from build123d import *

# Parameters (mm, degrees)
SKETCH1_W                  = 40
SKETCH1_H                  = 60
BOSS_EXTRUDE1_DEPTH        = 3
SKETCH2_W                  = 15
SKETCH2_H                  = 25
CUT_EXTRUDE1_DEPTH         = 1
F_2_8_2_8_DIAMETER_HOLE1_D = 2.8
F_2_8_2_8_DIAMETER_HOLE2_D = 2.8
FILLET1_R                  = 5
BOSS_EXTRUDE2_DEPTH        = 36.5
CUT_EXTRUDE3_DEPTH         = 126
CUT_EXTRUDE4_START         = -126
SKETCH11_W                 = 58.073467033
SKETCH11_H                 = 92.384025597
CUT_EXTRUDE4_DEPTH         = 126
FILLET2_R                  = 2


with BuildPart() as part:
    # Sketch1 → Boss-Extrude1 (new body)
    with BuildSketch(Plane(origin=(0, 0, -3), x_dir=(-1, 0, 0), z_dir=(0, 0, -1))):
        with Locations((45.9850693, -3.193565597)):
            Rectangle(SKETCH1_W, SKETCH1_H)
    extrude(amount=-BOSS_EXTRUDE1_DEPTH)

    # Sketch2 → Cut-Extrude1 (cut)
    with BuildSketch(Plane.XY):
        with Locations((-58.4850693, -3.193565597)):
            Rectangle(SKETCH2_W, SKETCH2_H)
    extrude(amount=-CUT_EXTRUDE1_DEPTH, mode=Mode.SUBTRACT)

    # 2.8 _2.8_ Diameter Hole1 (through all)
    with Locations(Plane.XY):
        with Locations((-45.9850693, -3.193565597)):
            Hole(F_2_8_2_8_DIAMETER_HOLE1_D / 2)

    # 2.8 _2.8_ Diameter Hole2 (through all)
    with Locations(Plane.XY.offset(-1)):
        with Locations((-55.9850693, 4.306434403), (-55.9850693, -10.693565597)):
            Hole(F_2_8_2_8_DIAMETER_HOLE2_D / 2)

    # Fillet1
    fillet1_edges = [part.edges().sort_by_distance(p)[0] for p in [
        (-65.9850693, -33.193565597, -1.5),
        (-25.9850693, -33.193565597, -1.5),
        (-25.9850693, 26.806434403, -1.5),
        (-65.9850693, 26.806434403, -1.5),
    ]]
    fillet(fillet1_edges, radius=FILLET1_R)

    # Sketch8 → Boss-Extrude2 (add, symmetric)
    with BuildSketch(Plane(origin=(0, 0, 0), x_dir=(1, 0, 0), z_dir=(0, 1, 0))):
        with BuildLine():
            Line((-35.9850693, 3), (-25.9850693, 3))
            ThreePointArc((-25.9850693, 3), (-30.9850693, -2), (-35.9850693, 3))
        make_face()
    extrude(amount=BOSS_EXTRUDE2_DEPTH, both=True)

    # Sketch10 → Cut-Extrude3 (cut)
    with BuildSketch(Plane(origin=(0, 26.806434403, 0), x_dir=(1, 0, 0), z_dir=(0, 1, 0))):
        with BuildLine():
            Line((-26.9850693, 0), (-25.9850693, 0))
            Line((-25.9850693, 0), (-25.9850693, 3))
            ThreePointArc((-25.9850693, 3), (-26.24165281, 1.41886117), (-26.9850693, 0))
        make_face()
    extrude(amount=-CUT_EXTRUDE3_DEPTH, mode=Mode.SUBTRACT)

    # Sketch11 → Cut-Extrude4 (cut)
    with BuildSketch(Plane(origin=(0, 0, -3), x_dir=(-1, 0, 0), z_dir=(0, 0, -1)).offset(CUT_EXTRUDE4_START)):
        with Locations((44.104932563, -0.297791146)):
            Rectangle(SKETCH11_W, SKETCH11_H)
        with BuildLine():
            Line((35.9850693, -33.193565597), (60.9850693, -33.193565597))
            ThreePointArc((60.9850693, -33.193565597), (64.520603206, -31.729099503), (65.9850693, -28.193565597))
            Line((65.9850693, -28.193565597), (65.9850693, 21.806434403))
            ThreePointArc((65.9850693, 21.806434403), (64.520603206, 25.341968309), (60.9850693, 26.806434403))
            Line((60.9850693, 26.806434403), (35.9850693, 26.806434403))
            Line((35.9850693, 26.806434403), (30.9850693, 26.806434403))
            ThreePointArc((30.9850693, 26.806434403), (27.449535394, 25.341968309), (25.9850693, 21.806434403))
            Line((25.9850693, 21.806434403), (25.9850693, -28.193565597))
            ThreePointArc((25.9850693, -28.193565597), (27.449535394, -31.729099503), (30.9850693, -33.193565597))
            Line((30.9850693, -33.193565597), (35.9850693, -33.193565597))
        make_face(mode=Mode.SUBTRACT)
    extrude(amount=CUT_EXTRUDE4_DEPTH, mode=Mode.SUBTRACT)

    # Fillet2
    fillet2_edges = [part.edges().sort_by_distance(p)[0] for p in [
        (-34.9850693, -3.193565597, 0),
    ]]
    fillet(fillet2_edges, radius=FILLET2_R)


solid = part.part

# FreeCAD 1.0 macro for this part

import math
import FreeCAD as App
import Part
import Sketcher

V = App.Vector
Q = App.Units.Quantity


def edges_at(feature, points):
    """Names of the edges that pass closest to the given points."""
    edges = feature.Shape.Edges
    near = lambda p: min(range(len(edges)), key=lambda i: edges[i].distToShape(Part.Vertex(*p))[0])
    return sorted({f"Edge{near(p) + 1}" for p in points})

doc = App.newDocument("Part")
body = doc.addObject("PartDesign::Body", "Body")

# Sketch on XY plane
sketch1 = body.newObject("Sketcher::SketchObject", "Sketch")
sketch1.AttachmentSupport = (doc.getObject("XY_Plane"), [""])
sketch1.MapMode = "FlatFace"
sketch1.AttachmentOffset = App.Placement(V(0, 0, -3), App.Rotation())
sketch1.addGeometry([
    Part.LineSegment(V(-26, 27, 0), V(-26, -33, 0)),
    Part.LineSegment(V(-26, -33, 0), V(-66, -33, 0)),
    Part.LineSegment(V(-66, -33, 0), V(-66, 27, 0)),
    Part.LineSegment(V(-66, 27, 0), V(-26, 27, 0)),
], False)
sketch1.addConstraint([
    Sketcher.Constraint("Coincident", 0, 2, 1, 1),
    Sketcher.Constraint("Coincident", 1, 2, 2, 1),
    Sketcher.Constraint("Coincident", 2, 2, 3, 1),
    Sketcher.Constraint("Coincident", 3, 2, 0, 1),
    Sketcher.Constraint("Vertical", 0),
    Sketcher.Constraint("Horizontal", 1),
    Sketcher.Constraint("Vertical", 2),
    Sketcher.Constraint("Horizontal", 3),
    Sketcher.Constraint("DistanceX", 1, 2, 1, 1, Q("40 mm")),
    Sketcher.Constraint("DistanceY", 0, 2, 0, 1, Q("60 mm")),
    Sketcher.Constraint("DistanceX", 0, 2, -1, 1, Q("25.985069 mm")),
    Sketcher.Constraint("DistanceY", 0, 2, -1, 1, Q("33.193566 mm")),
])
pad1 = body.newObject("PartDesign::Pad", "Pad")
pad1.Profile = sketch1
pad1.Length = 3

# Sketch on XY plane
sketch2 = body.newObject("Sketcher::SketchObject", "Sketch001")
sketch2.AttachmentSupport = (doc.getObject("XY_Plane"), [""])
sketch2.MapMode = "FlatFace"
sketch2.addGeometry([
    Part.LineSegment(V(-66, 9, 0), V(-66, -16, 0)),
    Part.LineSegment(V(-66, -16, 0), V(-51, -16, 0)),
    Part.LineSegment(V(-51, -16, 0), V(-51, 9, 0)),
    Part.LineSegment(V(-51, 9, 0), V(-66, 9, 0)),
], False)
sketch2.addConstraint([
    Sketcher.Constraint("Coincident", 0, 2, 1, 1),
    Sketcher.Constraint("Coincident", 1, 2, 2, 1),
    Sketcher.Constraint("Coincident", 2, 2, 3, 1),
    Sketcher.Constraint("Coincident", 3, 2, 0, 1),
    Sketcher.Constraint("Vertical", 0),
    Sketcher.Constraint("Horizontal", 1),
    Sketcher.Constraint("Vertical", 2),
    Sketcher.Constraint("Horizontal", 3),
    Sketcher.Constraint("DistanceX", 1, 1, 1, 2, Q("15 mm")),
    Sketcher.Constraint("DistanceY", 0, 2, 0, 1, Q("25 mm")),
    Sketcher.Constraint("DistanceX", 0, 2, -1, 1, Q("65.985069 mm")),
    Sketcher.Constraint("DistanceY", 0, 2, -1, 1, Q("15.693566 mm")),
])
pocket1 = body.newObject("PartDesign::Pocket", "Pocket")
pocket1.Profile = sketch2
pocket1.Length = 1

# Sketch on XY plane
sketch3 = body.newObject("Sketcher::SketchObject", "Sketch002")
sketch3.AttachmentSupport = (doc.getObject("XY_Plane"), [""])
sketch3.MapMode = "FlatFace"
sketch3.addGeometry(Part.Circle(V(-46, -3.2, 0), V(0, 0, 1), 1.4), False)
sketch3.addConstraint([
    Sketcher.Constraint("Diameter", 0, Q("2.8 mm")),
    Sketcher.Constraint("DistanceX", 0, 3, -1, 1, Q("45.985069 mm")),
    Sketcher.Constraint("DistanceY", 0, 3, -1, 1, Q("3.193566 mm")),
])
doc.recompute()
hole = body.newObject("PartDesign::Hole", "Hole")
hole.Profile = sketch3
hole.ThreadType = "None"
hole.Diameter = 2.8
hole.DepthType = "ThroughAll"

# Sketch on XY plane
sketch4 = body.newObject("Sketcher::SketchObject", "Sketch003")
sketch4.AttachmentSupport = (doc.getObject("XY_Plane"), [""])
sketch4.MapMode = "FlatFace"
sketch4.AttachmentOffset = App.Placement(V(0, 0, -1), App.Rotation())
sketch4.addGeometry([
    Part.Circle(V(-56, 4.3, 0), V(0, 0, 1), 1.4),
    Part.Circle(V(-56, -10.7, 0), V(0, 0, 1), 1.4),
], False)
sketch4.addConstraint([
    Sketcher.Constraint("Equal", 0, 1),
    Sketcher.Constraint("Vertical", 0, 3, 1, 3),
    Sketcher.Constraint("Diameter", 0, Q("2.8 mm")),
    Sketcher.Constraint("DistanceY", 1, 3, 0, 3, Q("15 mm")),
    Sketcher.Constraint("DistanceX", 0, 3, -1, 1, Q("55.985069 mm")),
    Sketcher.Constraint("DistanceY", -1, 1, 0, 3, Q("4.306434 mm")),
])
doc.recompute()
hole2 = body.newObject("PartDesign::Hole", "Hole001")
hole2.Profile = sketch4
hole2.ThreadType = "None"
hole2.Diameter = 2.8
hole2.DepthType = "ThroughAll"
doc.recompute()

fillet = body.newObject("PartDesign::Fillet", "Fillet")
fillet.Base = (hole2, edges_at(hole2, [
    (-65.985, -33.194, -1.5),
    (-25.985, -33.194, -1.5),
    (-25.985, 26.806, -1.5),
    (-65.985, 26.806, -1.5),
]))
fillet.Radius = 5

# Sketch on XZ plane
sketch5 = body.newObject("Sketcher::SketchObject", "Sketch004")
sketch5.AttachmentSupport = (doc.getObject("XZ_Plane"), [""])
sketch5.MapMode = "FlatFace"
sketch5.addGeometry([
    Part.LineSegment(V(-26, -3, 0), V(-36, -3, 0)),
    Part.ArcOfCircle(Part.Circle(V(-31, -3, 0), V(0, 0, 1), 5), math.radians(0), math.radians(180)),
], False)
sketch5.addConstraint([
    Sketcher.Constraint("Coincident", 0, 1, 1, 1),
    Sketcher.Constraint("Coincident", 1, 2, 0, 2),
    Sketcher.Constraint("Horizontal", 0),
    Sketcher.Constraint("Horizontal", 1, 3, 0, 1),
    Sketcher.Constraint("Radius", 1, Q("5 mm")),
    Sketcher.Constraint("DistanceY", 1, 3, -1, 1, Q("3 mm")),
    Sketcher.Constraint("DistanceX", 1, 3, -1, 1, Q("30.985069 mm")),
])
pad2 = body.newObject("PartDesign::Pad", "Pad001")
pad2.Profile = sketch5
pad2.Length = 73
pad2.Midplane = True

# Sketch on XZ plane
sketch6 = body.newObject("Sketcher::SketchObject", "Sketch005")
sketch6.AttachmentSupport = (doc.getObject("XZ_Plane"), [""])
sketch6.MapMode = "FlatFace"
sketch6.AttachmentOffset = App.Placement(V(0, 0, -26.806434), App.Rotation())
sketch6.addGeometry([
    Part.LineSegment(V(-27, 0, 0), V(-26, 0, 0)),
    Part.LineSegment(V(-26, 0, 0), V(-26, -3, 0)),
    Part.ArcOfCircle(Part.Circle(V(-31, -3, 0), V(0, 0, 1), 5), math.radians(0), math.radians(37)),
], False)
sketch6.addConstraint([
    Sketcher.Constraint("Coincident", 0, 2, 1, 1),
    Sketcher.Constraint("Tangent", 1, 2, 2, 1),
    Sketcher.Constraint("Coincident", 2, 2, 0, 1),
    Sketcher.Constraint("Horizontal", 0),
    Sketcher.Constraint("Vertical", 1),
    Sketcher.Constraint("PointOnObject", 0, 2, -1),
    Sketcher.Constraint("Radius", 2, Q("5 mm")),
    Sketcher.Constraint("DistanceX", 0, 1, 0, 2, Q("1 mm")),
    Sketcher.Constraint("DistanceX", 2, 3, -1, 1, Q("30.985069 mm")),
])
pocket2 = body.newObject("PartDesign::Pocket", "Pocket001")
pocket2.Profile = sketch6
pocket2.Length = 126
pocket2.Reversed = True

# Sketch on XY plane
sketch7 = body.newObject("Sketcher::SketchObject", "Sketch006")
sketch7.AttachmentSupport = (doc.getObject("XY_Plane"), [""])
sketch7.MapMode = "FlatFace"
sketch7.AttachmentOffset = App.Placement(V(0, 0, 123), App.Rotation())
sketch7.addGeometry([
    Part.LineSegment(V(-15, 46, 0), V(-15, -46, 0)),  # 0
    Part.LineSegment(V(-15, -46, 0), V(-73, -46, 0)),  # 1
    Part.LineSegment(V(-73, -46, 0), V(-73, 46, 0)),  # 2
    Part.LineSegment(V(-73, 46, 0), V(-15, 46, 0)),  # 3
    Part.ArcOfCircle(Part.Circle(V(-61, -28, 0), V(0, 0, 1), 5), math.radians(180), math.radians(270)),  # 4
    Part.LineSegment(V(-61, -33, 0), V(-31, -33, 0)),  # 5
    Part.ArcOfCircle(Part.Circle(V(-31, -28, 0), V(0, 0, 1), 5), math.radians(-90), math.radians(0)),  # 6
    Part.LineSegment(V(-26, -28, 0), V(-26, 22, 0)),  # 7
    Part.ArcOfCircle(Part.Circle(V(-31, 22, 0), V(0, 0, 1), 5), math.radians(0), math.radians(90)),  # 8
    Part.LineSegment(V(-31, 27, 0), V(-61, 27, 0)),  # 9
    Part.ArcOfCircle(Part.Circle(V(-61, 22, 0), V(0, 0, 1), 5), math.radians(90), math.radians(180)),  # 10
    Part.LineSegment(V(-66, 22, 0), V(-66, -28, 0)),  # 11
], False)
sketch7.addConstraint([
    Sketcher.Constraint("Coincident", 0, 2, 1, 1),
    Sketcher.Constraint("Coincident", 1, 2, 2, 1),
    Sketcher.Constraint("Coincident", 2, 2, 3, 1),
    Sketcher.Constraint("Coincident", 3, 2, 0, 1),
    Sketcher.Constraint("Tangent", 4, 2, 5, 1),
    Sketcher.Constraint("Tangent", 5, 2, 6, 1),
    Sketcher.Constraint("Tangent", 6, 2, 7, 1),
    Sketcher.Constraint("Tangent", 7, 2, 8, 1),
    Sketcher.Constraint("Tangent", 8, 2, 9, 1),
    Sketcher.Constraint("Tangent", 9, 2, 10, 1),
    Sketcher.Constraint("Tangent", 10, 2, 11, 1),
    Sketcher.Constraint("Tangent", 11, 2, 4, 1),
    Sketcher.Constraint("Vertical", 0),
    Sketcher.Constraint("Horizontal", 1),
    Sketcher.Constraint("Vertical", 2),
    Sketcher.Constraint("Horizontal", 3),
    Sketcher.Constraint("Horizontal", 5),
    Sketcher.Constraint("Vertical", 7),
    Sketcher.Constraint("Horizontal", 9),
    Sketcher.Constraint("Vertical", 11),
    Sketcher.Constraint("Equal", 4, 6),
    Sketcher.Constraint("Equal", 6, 8),
    Sketcher.Constraint("Equal", 8, 10),
    Sketcher.Constraint("Radius", 4, Q("5 mm")),
    Sketcher.Constraint("DistanceX", 5, 1, 5, 2, Q("30 mm")),
    Sketcher.Constraint("DistanceY", 7, 1, 7, 2, Q("50 mm")),
    Sketcher.Constraint("DistanceX", 0, 2, -1, 1, Q("15.068199 mm")),
    Sketcher.Constraint("DistanceX", 1, 2, 1, 1, Q("58.073467 mm")),
    Sketcher.Constraint("DistanceY", 0, 2, 0, 1, Q("92.384026 mm")),
    Sketcher.Constraint("DistanceX", 4, 3, -1, 1, Q("60.985069 mm")),
    Sketcher.Constraint("DistanceY", -1, 1, 2, 2, Q("45.894222 mm")),
    Sketcher.Constraint("DistanceY", 0, 2, 6, 3, Q("18.296238 mm")),
])
pocket3 = body.newObject("PartDesign::Pocket", "Pocket002")
pocket3.Profile = sketch7
pocket3.Length = 126
doc.recompute()

fillet2 = body.newObject("PartDesign::Fillet", "Fillet001")
fillet2.Base = (pocket3, edges_at(pocket3, [(-34.985, -3.194, 0)]))
fillet2.Radius = 2

doc.recompute()
